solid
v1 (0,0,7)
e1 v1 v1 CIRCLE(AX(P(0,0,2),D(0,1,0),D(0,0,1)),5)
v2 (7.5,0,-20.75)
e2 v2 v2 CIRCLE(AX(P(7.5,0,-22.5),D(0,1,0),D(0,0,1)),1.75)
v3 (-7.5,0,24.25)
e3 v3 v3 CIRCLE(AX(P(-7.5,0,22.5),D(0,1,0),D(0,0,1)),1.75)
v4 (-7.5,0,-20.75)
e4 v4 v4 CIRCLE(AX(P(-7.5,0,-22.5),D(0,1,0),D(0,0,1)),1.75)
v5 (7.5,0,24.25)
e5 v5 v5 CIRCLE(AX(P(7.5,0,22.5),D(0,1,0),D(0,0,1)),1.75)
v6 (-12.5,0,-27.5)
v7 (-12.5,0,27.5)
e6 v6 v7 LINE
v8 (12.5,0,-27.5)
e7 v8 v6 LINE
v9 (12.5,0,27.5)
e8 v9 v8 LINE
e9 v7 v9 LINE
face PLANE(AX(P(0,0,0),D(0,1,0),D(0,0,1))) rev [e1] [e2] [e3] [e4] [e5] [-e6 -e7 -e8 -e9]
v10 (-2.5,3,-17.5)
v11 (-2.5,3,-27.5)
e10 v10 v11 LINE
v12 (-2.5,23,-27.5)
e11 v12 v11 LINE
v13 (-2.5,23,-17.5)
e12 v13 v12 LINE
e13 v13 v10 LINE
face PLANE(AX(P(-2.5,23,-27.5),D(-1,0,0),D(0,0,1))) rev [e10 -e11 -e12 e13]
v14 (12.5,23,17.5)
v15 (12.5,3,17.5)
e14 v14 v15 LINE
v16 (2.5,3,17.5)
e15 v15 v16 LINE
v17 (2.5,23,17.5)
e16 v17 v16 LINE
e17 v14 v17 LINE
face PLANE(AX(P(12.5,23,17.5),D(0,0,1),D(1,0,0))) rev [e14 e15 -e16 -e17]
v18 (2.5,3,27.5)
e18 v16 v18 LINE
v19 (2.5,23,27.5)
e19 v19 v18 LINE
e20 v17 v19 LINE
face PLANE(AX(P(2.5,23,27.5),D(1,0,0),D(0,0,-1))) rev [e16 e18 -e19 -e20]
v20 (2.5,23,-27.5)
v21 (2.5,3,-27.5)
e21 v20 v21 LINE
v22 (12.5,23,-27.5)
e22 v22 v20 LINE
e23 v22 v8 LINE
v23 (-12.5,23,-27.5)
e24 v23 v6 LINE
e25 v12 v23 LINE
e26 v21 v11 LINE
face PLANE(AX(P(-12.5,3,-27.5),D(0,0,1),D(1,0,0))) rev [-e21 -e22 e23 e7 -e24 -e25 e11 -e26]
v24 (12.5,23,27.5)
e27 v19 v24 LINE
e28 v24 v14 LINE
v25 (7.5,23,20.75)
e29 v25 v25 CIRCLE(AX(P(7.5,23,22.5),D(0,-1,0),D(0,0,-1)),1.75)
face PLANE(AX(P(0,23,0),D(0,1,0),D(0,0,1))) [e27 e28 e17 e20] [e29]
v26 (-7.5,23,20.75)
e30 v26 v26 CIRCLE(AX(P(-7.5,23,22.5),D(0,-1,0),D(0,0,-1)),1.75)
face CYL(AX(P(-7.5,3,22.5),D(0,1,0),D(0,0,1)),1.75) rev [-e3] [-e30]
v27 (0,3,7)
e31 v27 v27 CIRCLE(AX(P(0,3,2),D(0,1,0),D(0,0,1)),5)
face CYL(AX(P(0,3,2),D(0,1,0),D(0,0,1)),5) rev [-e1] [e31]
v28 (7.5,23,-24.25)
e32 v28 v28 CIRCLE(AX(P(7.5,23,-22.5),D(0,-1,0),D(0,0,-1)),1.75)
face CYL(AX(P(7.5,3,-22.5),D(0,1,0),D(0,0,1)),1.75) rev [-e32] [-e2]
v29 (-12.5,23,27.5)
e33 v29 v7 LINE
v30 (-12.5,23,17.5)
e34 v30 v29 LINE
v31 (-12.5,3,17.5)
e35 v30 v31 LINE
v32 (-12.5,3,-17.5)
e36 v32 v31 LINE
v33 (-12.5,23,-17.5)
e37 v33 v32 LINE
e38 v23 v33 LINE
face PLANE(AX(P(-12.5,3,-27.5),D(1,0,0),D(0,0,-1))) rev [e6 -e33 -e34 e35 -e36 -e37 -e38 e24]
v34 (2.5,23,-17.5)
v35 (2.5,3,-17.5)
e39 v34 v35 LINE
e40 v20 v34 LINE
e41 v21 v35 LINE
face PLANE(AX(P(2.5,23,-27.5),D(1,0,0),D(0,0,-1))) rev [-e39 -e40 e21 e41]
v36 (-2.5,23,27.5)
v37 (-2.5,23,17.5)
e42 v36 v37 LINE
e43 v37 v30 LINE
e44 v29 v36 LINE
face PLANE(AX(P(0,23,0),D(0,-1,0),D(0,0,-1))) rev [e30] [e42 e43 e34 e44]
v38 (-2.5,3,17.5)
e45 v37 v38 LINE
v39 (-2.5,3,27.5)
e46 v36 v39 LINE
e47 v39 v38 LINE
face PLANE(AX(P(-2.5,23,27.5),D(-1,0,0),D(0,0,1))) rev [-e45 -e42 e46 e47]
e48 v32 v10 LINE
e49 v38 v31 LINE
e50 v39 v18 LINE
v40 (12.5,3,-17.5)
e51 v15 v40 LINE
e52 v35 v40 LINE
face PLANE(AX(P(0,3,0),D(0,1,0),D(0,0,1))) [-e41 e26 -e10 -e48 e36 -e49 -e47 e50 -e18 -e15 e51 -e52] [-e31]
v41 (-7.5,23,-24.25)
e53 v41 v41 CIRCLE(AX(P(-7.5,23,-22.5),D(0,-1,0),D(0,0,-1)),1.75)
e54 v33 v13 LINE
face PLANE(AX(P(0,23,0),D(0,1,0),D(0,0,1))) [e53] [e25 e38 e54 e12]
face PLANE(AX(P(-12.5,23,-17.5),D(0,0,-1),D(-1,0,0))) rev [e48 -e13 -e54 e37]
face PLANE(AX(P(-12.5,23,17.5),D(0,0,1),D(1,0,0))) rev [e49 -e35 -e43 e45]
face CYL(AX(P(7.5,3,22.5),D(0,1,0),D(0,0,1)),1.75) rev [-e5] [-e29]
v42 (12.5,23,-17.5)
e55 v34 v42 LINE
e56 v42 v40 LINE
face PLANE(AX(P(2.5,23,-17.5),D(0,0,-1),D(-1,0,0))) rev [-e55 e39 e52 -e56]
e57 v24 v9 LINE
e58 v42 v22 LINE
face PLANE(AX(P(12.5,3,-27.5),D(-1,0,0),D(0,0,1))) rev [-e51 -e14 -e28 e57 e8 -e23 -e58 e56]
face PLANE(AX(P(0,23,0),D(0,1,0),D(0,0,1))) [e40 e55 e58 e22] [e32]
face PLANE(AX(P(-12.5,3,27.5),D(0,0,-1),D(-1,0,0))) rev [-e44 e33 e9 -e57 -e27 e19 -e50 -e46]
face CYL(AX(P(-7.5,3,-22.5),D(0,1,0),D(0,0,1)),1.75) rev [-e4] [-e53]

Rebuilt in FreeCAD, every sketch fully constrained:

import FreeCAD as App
import Part
import Sketcher

V = App.Vector
Q = App.Units.Quantity

doc = App.newDocument("Part")
body = doc.addObject("PartDesign::Body", "Body")

# Sketch on XZ plane
sketch1 = doc.addObject("Sketcher::SketchObject", "Sketch")
body.addObject(sketch1)
sketch1.AttachmentSupport = (doc.XZ_Plane, [""])
sketch1.MapMode = "FlatFace"
sketch1.addGeometry(Part.LineSegment(V(-12, -28, 0), V(-12, 28, 0)), False)
sketch1.addGeometry(Part.LineSegment(V(-12, 28, 0), V(12, 28, 0)), False)
sketch1.addGeometry(Part.LineSegment(V(12, 28, 0), V(12, -28, 0)), False)
sketch1.addGeometry(Part.LineSegment(V(12, -28, 0), V(-12, -28, 0)), False)
sketch1.addConstraint(Sketcher.Constraint("Coincident", 0, 2, 1, 1))
sketch1.addConstraint(Sketcher.Constraint("Coincident", 1, 2, 2, 1))
sketch1.addConstraint(Sketcher.Constraint("Coincident", 2, 2, 3, 1))
sketch1.addConstraint(Sketcher.Constraint("Coincident", 3, 2, 0, 1))
sketch1.addConstraint(Sketcher.Constraint("Vertical", 0))
sketch1.addConstraint(Sketcher.Constraint("Horizontal", 1))
sketch1.addConstraint(Sketcher.Constraint("Vertical", 2))
sketch1.addConstraint(Sketcher.Constraint("Horizontal", 3))
sketch1.addConstraint(Sketcher.Constraint("Symmetric", 0, 2, 2, 2, -1, 1))
sketch1.addConstraint(Sketcher.Constraint("DistanceX", 1, 1, 1, 2, Q("25 mm")))
sketch1.addConstraint(Sketcher.Constraint("DistanceY", 0, 1, 0, 2, Q("55 mm")))
pad1 = doc.addObject("PartDesign::Pad", "Pad")
body.addObject(pad1)
pad1.Profile = sketch1
pad1.Length = 3
pad1.Reversed = True

# Sketch on XZ plane
sketch2 = doc.addObject("Sketcher::SketchObject", "Sketch001")
body.addObject(sketch2)
sketch2.AttachmentSupport = (doc.XZ_Plane, [""])
sketch2.MapMode = "FlatFace"
sketch2.AttachmentOffset = App.Placement(V(0, 0, -3), App.Rotation())
sketch2.addGeometry(Part.LineSegment(V(-12, -28, 0), V(-12, -18, 0)), False)
sketch2.addGeometry(Part.LineSegment(V(-12, -18, 0), V(-2, -18, 0)), False)
sketch2.addGeometry(Part.LineSegment(V(-2, -18, 0), V(-2, -28, 0)), False)
sketch2.addGeometry(Part.LineSegment(V(-2, -28, 0), V(-12, -28, 0)), False)
sketch2.addGeometry(Part.LineSegment(V(2, -28, 0), V(2, -18, 0)), False)
sketch2.addGeometry(Part.LineSegment(V(2, -18, 0), V(12, -18, 0)), False)
sketch2.addGeometry(Part.LineSegment(V(12, -18, 0), V(12, -28, 0)), False)
sketch2.addGeometry(Part.LineSegment(V(12, -28, 0), V(2, -28, 0)), False)
sketch2.addGeometry(Part.LineSegment(V(2, 18, 0), V(2, 28, 0)), False)
sketch2.addGeometry(Part.LineSegment(V(2, 28, 0), V(12, 28, 0)), False)
sketch2.addGeometry(Part.LineSegment(V(12, 28, 0), V(12, 18, 0)), False)
sketch2.addGeometry(Part.LineSegment(V(12, 18, 0), V(2, 18, 0)), False)
sketch2.addGeometry(Part.LineSegment(V(-12, 18, 0), V(-12, 28, 0)), False)
sketch2.addGeometry(Part.LineSegment(V(-12, 28, 0), V(-2, 28, 0)), False)
sketch2.addGeometry(Part.LineSegment(V(-2, 28, 0), V(-2, 18, 0)), False)
sketch2.addGeometry(Part.LineSegment(V(-2, 18, 0), V(-12, 18, 0)), False)
sketch2.addConstraint(Sketcher.Constraint("Coincident", 0, 2, 1, 1))
sketch2.addConstraint(Sketcher.Constraint("Coincident", 1, 2, 2, 1))
sketch2.addConstraint(Sketcher.Constraint("Coincident", 2, 2, 3, 1))
sketch2.addConstraint(Sketcher.Constraint("Coincident", 3, 2, 0, 1))
sketch2.addConstraint(Sketcher.Constraint("Coincident", 4, 2, 5, 1))
sketch2.addConstraint(Sketcher.Constraint("Coincident", 5, 2, 6, 1))
sketch2.addConstraint(Sketcher.Constraint("Coincident", 6, 2, 7, 1))
sketch2.addConstraint(Sketcher.Constraint("Coincident", 7, 2, 4, 1))
sketch2.addConstraint(Sketcher.Constraint("Coincident", 8, 2, 9, 1))
sketch2.addConstraint(Sketcher.Constraint("Coincident", 9, 2, 10, 1))
sketch2.addConstraint(Sketcher.Constraint("Coincident", 10, 2, 11, 1))
sketch2.addConstraint(Sketcher.Constraint("Coincident", 11, 2, 8, 1))
sketch2.addConstraint(Sketcher.Constraint("Coincident", 12, 2, 13, 1))
sketch2.addConstraint(Sketcher.Constraint("Coincident", 13, 2, 14, 1))
sketch2.addConstraint(Sketcher.Constraint("Coincident", 14, 2, 15, 1))
sketch2.addConstraint(Sketcher.Constraint("Coincident", 15, 2, 12, 1))
sketch2.addConstraint(Sketcher.Constraint("Vertical", 0))
sketch2.addConstraint(Sketcher.Constraint("Horizontal", 1))
sketch2.addConstraint(Sketcher.Constraint("Vertical", 2))
sketch2.addConstraint(Sketcher.Constraint("Horizontal", 3))
sketch2.addConstraint(Sketcher.Constraint("Vertical", 4))
sketch2.addConstraint(Sketcher.Constraint("Horizontal", 5))
sketch2.addConstraint(Sketcher.Constraint("Vertical", 6))
sketch2.addConstraint(Sketcher.Constraint("Horizontal", 7))
sketch2.addConstraint(Sketcher.Constraint("Vertical", 8))
sketch2.addConstraint(Sketcher.Constraint("Horizontal", 9))
sketch2.addConstraint(Sketcher.Constraint("Vertical", 10))
sketch2.addConstraint(Sketcher.Constraint("Horizontal", 11))
sketch2.addConstraint(Sketcher.Constraint("Vertical", 12))
sketch2.addConstraint(Sketcher.Constraint("Horizontal", 13))
sketch2.addConstraint(Sketcher.Constraint("Vertical", 14))
sketch2.addConstraint(Sketcher.Constraint("Horizontal", 15))
sketch2.addConstraint(Sketcher.Constraint("Symmetric", 2, 2, 8, 2, -1, 1))
sketch2.addConstraint(Sketcher.Constraint("Symmetric", 0, 2, 10, 2, -1, 1))
sketch2.addConstraint(Sketcher.Constraint("Symmetric", 6, 2, 12, 2, -1, 1))
sketch2.addConstraint(Sketcher.Constraint("Symmetric", 4, 2, 14, 2, -1, 1))
sketch2.addConstraint(Sketcher.Constraint("Symmetric", 1, 2, 4, 2, -2))
sketch2.addConstraint(Sketcher.Constraint("Symmetric", 3, 2, 6, 2, -2))
sketch2.addConstraint(Sketcher.Constraint("Equal", 15, 0))
sketch2.addConstraint(Sketcher.Constraint("DistanceX", 1, 1, 1, 2, Q("10 mm")))
sketch2.addConstraint(Sketcher.Constraint("DistanceX", 1, 2, 4, 2, Q("5 mm")))
sketch2.addConstraint(Sketcher.Constraint("DistanceY", 4, 2, 8, 2, Q("45 mm")))
pad2 = doc.addObject("PartDesign::Pad", "Pad001")
body.addObject(pad2)
pad2.Profile = sketch2
pad2.Length = 20
pad2.Reversed = True

# Sketch on XZ plane
sketch3 = doc.addObject("Sketcher::SketchObject", "Sketch002")
body.addObject(sketch3)
sketch3.AttachmentSupport = (doc.XZ_Plane, [""])
sketch3.MapMode = "FlatFace"
sketch3.AttachmentOffset = App.Placement(V(0, 0, -3), App.Rotation())
sketch3.addGeometry(Part.Circle(V(0, 2, 0), V(0, 0, 1), 5), False)
sketch3.addConstraint(Sketcher.Constraint("PointOnObject", 0, 3, -2))
sketch3.addConstraint(Sketcher.Constraint("Diameter", 0, Q("10 mm")))
sketch3.addConstraint(Sketcher.Constraint("DistanceY", -1, 1, 0, 3, Q("2 mm")))
doc.recompute()
hole = doc.addObject("PartDesign::Hole", "Hole")
body.addObject(hole)
hole.Profile = sketch3
hole.ThreadType = "None"
hole.Diameter = 10
hole.DepthType = "ThroughAll"
hole.Reversed = True

# Sketch on YZ plane
sketch4 = doc.addObject("Sketcher::SketchObject", "Sketch003")
body.addObject(sketch4)
sketch4.AttachmentSupport = (doc.YZ_Plane, [""])
sketch4.MapMode = "FlatFace"
sketch4.AttachmentOffset = App.Placement(V(0, 0, -7.5), App.Rotation())
sketch4.addGeometry(Part.LineSegment(V(0, -22.5, 0), V(3, -22.5, 0)), False)
sketch4.addGeometry(Part.LineSegment(V(3, -22.5, 0), V(3, -20.8, 0)), False)
sketch4.addGeometry(Part.LineSegment(V(3, -20.8, 0), V(0, -20.8, 0)), False)
sketch4.addGeometry(Part.LineSegment(V(0, -20.8, 0), V(0, -22.5, 0)), False)
sketch4.addGeometry(Part.LineSegment(V(0, -22.5, 0), V(3, -22.5, 0)), True)  # axis
sketch4.addConstraint(Sketcher.Constraint("Coincident", 0, 2, 1, 1))
sketch4.addConstraint(Sketcher.Constraint("Coincident", 1, 2, 2, 1))
sketch4.addConstraint(Sketcher.Constraint("Coincident", 2, 2, 3, 1))
sketch4.addConstraint(Sketcher.Constraint("Coincident", 3, 2, 0, 1))
sketch4.addConstraint(Sketcher.Constraint("Horizontal", 0))
sketch4.addConstraint(Sketcher.Constraint("Vertical", 1))
sketch4.addConstraint(Sketcher.Constraint("Horizontal", 2))
sketch4.addConstraint(Sketcher.Constraint("Vertical", 3))
sketch4.addConstraint(Sketcher.Constraint("Horizontal", 4))
sketch4.addConstraint(Sketcher.Constraint("Coincident", 4, 1, 3, 2))
sketch4.addConstraint(Sketcher.Constraint("PointOnObject", 2, 2, -2))
sketch4.addConstraint(Sketcher.Constraint("Vertical", 1, 2, 4, 2))
sketch4.addConstraint(Sketcher.Constraint("DistanceX", 0, 1, 0, 2, Q("3 mm")))
sketch4.addConstraint(Sketcher.Constraint("DistanceY", 1, 1, 1, 2, Q("1.75 mm")))
sketch4.addConstraint(Sketcher.Constraint("DistanceY", 0, 2, -1, 1, Q("22.5 mm")))
groove = doc.addObject("PartDesign::Groove", "Groove")
body.addObject(groove)
groove.Profile = sketch4
groove.ReferenceAxis = (sketch4, ["Axis0"])
groove.Angle = 360
doc.recompute()

linearpattern = doc.addObject("PartDesign::LinearPattern", "LinearPattern")
body.addObject(linearpattern)
linearpattern.Originals = [groove]
linearpattern.Direction = (doc.X_Axis, [""])
linearpattern.Mode = "offset"
linearpattern.Offset = 15
linearpattern.Occurrences = 2
body.Tip = linearpattern
doc.recompute()

datumline = doc.addObject("PartDesign::Line", "DatumLine")
body.addObject(datumline)
datumline.Placement = App.Placement(V(0, 0, 0), App.Rotation(V(0, 0, 1), V(0.316227766, 0, 0.948683298)))
linearpattern2 = doc.addObject("PartDesign::LinearPattern", "LinearPattern001")
body.addObject(linearpattern2)
linearpattern2.Originals = [groove]
linearpattern2.Direction = (datumline, [""])
linearpattern2.Mode = "offset"
linearpattern2.Offset = 47.434165
linearpattern2.Occurrences = 2
body.Tip = linearpattern2
doc.recompute()

linearpattern3 = doc.addObject("PartDesign::LinearPattern", "LinearPattern002")
body.addObject(linearpattern3)
linearpattern3.Originals = [groove]
linearpattern3.Direction = (doc.Z_Axis, [""])
linearpattern3.Mode = "offset"
linearpattern3.Offset = 45
linearpattern3.Occurrences = 2
body.Tip = linearpattern3

# Sketch on XZ plane
sketch5 = doc.addObject("Sketcher::SketchObject", "Sketch004")
body.addObject(sketch5)
sketch5.AttachmentSupport = (doc.XZ_Plane, [""])
sketch5.MapMode = "FlatFace"
sketch5.addGeometry(Part.Circle(V(-7.5, -22.5, 0), V(0, 0, 1), 1.8), False)
sketch5.addGeometry(Part.Circle(V(7.5, -22.5, 0), V(0, 0, 1), 1.8), False)
sketch5.addGeometry(Part.Circle(V(7.5, 22.5, 0), V(0, 0, 1), 1.8), False)
sketch5.addGeometry(Part.Circle(V(-7.5, 22.5, 0), V(0, 0, 1), 1.8), False)
sketch5.addConstraint(Sketcher.Constraint("Equal", 0, 1))
sketch5.addConstraint(Sketcher.Constraint("Equal", 1, 2))
sketch5.addConstraint(Sketcher.Constraint("Equal", 2, 3))
sketch5.addConstraint(Sketcher.Constraint("Symmetric", 0, 3, 2, 3, -1, 1))
sketch5.addConstraint(Sketcher.Constraint("Symmetric", 1, 3, 3, 3, -1, 1))
sketch5.addConstraint(Sketcher.Constraint("Symmetric", 0, 3, 1, 3, -2))
sketch5.addConstraint(Sketcher.Constraint("Diameter", 0, Q("3.5 mm")))
sketch5.addConstraint(Sketcher.Constraint("DistanceX", 0, 3, 1, 3, Q("15 mm")))
sketch5.addConstraint(Sketcher.Constraint("DistanceY", 1, 3, 2, 3, Q("45 mm")))
doc.recompute()
hole2 = doc.addObject("PartDesign::Hole", "Hole001")
body.addObject(hole2)
hole2.Profile = sketch5
hole2.ThreadType = "None"
hole2.Diameter = 3.5
hole2.DepthType = "ThroughAll"

doc.recompute()
